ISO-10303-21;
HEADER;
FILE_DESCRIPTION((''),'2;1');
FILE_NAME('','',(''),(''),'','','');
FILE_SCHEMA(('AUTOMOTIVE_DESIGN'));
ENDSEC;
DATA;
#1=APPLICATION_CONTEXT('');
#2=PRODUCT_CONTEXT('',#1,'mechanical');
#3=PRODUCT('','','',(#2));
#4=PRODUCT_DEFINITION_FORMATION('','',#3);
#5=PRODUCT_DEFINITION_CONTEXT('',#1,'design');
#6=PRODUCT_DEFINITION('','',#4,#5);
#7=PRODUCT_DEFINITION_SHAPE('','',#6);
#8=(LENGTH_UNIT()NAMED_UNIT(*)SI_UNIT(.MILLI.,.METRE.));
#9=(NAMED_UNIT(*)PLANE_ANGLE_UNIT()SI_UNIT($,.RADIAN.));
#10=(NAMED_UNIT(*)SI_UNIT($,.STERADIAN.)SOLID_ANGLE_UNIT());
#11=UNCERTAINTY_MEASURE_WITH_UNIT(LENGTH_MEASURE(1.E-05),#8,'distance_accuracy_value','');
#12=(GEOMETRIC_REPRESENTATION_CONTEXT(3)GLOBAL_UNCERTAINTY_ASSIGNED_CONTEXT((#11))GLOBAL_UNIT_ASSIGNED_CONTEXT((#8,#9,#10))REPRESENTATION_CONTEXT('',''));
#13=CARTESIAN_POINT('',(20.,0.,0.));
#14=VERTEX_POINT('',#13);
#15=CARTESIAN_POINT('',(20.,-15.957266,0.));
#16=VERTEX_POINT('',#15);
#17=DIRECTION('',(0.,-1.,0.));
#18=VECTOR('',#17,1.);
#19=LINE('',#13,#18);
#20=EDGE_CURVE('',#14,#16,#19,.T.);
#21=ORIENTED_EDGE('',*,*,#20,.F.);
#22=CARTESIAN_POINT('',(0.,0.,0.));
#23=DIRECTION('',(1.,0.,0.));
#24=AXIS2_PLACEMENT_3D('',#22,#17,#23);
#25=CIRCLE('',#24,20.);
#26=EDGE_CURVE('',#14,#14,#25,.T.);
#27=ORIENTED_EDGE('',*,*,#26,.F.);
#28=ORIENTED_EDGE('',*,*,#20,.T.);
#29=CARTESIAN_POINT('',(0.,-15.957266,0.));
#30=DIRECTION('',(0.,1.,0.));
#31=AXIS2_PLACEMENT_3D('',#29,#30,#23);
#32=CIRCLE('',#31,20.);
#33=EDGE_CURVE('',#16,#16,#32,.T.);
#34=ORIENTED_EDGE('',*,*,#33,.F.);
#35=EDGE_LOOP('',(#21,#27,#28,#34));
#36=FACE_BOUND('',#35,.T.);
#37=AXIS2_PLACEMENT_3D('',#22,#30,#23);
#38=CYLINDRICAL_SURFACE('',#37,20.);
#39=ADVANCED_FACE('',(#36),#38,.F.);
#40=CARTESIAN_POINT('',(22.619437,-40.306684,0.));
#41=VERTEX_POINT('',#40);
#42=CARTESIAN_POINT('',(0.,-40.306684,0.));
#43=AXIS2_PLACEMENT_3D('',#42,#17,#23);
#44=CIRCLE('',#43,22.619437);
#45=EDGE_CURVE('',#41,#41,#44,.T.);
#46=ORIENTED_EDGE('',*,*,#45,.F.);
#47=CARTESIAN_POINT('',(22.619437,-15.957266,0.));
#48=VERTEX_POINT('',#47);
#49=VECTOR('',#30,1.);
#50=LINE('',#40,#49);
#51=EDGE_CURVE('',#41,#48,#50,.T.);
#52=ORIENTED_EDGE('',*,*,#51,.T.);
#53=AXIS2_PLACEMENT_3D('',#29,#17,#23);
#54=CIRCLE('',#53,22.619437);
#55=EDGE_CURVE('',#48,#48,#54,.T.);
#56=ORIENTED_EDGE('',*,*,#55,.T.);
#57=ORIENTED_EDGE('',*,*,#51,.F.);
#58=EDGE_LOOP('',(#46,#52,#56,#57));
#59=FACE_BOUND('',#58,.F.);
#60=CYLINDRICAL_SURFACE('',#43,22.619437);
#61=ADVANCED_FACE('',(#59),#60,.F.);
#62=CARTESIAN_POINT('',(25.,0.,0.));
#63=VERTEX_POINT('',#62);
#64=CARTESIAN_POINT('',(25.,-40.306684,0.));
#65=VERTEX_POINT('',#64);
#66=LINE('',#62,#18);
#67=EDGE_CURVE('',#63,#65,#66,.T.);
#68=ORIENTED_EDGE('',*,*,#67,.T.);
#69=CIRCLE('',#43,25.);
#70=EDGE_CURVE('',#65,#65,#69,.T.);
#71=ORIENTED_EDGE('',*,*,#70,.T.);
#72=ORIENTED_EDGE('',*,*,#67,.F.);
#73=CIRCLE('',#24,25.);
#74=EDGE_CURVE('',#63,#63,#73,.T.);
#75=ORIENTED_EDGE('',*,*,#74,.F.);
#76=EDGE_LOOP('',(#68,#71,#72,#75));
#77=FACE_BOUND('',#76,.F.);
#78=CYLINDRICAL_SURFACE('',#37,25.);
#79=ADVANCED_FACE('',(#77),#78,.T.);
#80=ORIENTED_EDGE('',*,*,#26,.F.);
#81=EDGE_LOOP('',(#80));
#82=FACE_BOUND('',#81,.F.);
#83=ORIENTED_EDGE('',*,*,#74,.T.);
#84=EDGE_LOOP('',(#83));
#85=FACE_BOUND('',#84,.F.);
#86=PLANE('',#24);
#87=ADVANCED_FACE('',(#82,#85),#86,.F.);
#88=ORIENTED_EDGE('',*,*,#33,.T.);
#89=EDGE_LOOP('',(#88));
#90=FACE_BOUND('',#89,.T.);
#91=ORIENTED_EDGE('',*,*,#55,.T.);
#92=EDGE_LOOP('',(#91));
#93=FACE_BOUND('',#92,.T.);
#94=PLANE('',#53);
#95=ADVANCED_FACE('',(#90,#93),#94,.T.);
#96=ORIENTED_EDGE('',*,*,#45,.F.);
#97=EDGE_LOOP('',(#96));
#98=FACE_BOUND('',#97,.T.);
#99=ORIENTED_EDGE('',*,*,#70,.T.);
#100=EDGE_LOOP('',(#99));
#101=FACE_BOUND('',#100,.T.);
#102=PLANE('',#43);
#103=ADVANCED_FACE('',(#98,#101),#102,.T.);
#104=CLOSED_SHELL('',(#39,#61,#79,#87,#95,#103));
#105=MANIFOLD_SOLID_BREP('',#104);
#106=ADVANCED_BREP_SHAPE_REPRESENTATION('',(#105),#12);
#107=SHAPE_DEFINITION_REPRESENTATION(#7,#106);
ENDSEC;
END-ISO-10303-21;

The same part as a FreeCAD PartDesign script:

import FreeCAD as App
import Part
import Sketcher
from FreeCAD import Vector

doc = App.newDocument("Part")
body = doc.addObject("PartDesign::Body", "Body")

# Sketch on XZ plane
sketch1 = doc.addObject("Sketcher::SketchObject", "Sketch")
body.addObject(sketch1)
sketch1.AttachmentSupport = (doc.XZ_Plane, [""])
sketch1.MapMode = "FlatFace"
sketch1.addGeometry(Part.Circle(Vector(0, 0, 0), Vector(0, 0, 1), 25), False)
sketch1.addGeometry(Part.Circle(Vector(0, 0, 0), Vector(0, 0, 1), 20), False)
sketch1.addConstraint(Sketcher.Constraint("Coincident", 0, 3, -1, 1))
sketch1.addConstraint(Sketcher.Constraint("Coincident", 1, 3, -1, 1))
sketch1.addConstraint(Sketcher.Constraint("Diameter", 0, 50.0))
sketch1.addConstraint(Sketcher.Constraint("Diameter", 1, 40.0))
pad1 = doc.addObject("PartDesign::Pad", "Pad")
body.addObject(pad1)
pad1.Profile = sketch1
pad1.Length = 40.306684

# Sketch on XZ plane
sketch2 = doc.addObject("Sketcher::SketchObject", "Sketch001")
body.addObject(sketch2)
sketch2.AttachmentSupport = (doc.XZ_Plane, [""])
sketch2.MapMode = "FlatFace"
sketch2.AttachmentOffset = App.Placement(Vector(0, 0, 40.306684), App.Rotation())
sketch2.addGeometry(Part.Circle(Vector(0, 0, 0), Vector(0, 0, 1), 22.619437), False)
sketch2.addConstraint(Sketcher.Constraint("Coincident", 0, 3, -1, 1))
sketch2.addConstraint(Sketcher.Constraint("Diameter", 0, 45.238874))
pocket1 = doc.addObject("PartDesign::Pocket", "Pocket")
body.addObject(pocket1)
pocket1.Profile = sketch2
pocket1.Length = 24.349418

doc.recompute()
